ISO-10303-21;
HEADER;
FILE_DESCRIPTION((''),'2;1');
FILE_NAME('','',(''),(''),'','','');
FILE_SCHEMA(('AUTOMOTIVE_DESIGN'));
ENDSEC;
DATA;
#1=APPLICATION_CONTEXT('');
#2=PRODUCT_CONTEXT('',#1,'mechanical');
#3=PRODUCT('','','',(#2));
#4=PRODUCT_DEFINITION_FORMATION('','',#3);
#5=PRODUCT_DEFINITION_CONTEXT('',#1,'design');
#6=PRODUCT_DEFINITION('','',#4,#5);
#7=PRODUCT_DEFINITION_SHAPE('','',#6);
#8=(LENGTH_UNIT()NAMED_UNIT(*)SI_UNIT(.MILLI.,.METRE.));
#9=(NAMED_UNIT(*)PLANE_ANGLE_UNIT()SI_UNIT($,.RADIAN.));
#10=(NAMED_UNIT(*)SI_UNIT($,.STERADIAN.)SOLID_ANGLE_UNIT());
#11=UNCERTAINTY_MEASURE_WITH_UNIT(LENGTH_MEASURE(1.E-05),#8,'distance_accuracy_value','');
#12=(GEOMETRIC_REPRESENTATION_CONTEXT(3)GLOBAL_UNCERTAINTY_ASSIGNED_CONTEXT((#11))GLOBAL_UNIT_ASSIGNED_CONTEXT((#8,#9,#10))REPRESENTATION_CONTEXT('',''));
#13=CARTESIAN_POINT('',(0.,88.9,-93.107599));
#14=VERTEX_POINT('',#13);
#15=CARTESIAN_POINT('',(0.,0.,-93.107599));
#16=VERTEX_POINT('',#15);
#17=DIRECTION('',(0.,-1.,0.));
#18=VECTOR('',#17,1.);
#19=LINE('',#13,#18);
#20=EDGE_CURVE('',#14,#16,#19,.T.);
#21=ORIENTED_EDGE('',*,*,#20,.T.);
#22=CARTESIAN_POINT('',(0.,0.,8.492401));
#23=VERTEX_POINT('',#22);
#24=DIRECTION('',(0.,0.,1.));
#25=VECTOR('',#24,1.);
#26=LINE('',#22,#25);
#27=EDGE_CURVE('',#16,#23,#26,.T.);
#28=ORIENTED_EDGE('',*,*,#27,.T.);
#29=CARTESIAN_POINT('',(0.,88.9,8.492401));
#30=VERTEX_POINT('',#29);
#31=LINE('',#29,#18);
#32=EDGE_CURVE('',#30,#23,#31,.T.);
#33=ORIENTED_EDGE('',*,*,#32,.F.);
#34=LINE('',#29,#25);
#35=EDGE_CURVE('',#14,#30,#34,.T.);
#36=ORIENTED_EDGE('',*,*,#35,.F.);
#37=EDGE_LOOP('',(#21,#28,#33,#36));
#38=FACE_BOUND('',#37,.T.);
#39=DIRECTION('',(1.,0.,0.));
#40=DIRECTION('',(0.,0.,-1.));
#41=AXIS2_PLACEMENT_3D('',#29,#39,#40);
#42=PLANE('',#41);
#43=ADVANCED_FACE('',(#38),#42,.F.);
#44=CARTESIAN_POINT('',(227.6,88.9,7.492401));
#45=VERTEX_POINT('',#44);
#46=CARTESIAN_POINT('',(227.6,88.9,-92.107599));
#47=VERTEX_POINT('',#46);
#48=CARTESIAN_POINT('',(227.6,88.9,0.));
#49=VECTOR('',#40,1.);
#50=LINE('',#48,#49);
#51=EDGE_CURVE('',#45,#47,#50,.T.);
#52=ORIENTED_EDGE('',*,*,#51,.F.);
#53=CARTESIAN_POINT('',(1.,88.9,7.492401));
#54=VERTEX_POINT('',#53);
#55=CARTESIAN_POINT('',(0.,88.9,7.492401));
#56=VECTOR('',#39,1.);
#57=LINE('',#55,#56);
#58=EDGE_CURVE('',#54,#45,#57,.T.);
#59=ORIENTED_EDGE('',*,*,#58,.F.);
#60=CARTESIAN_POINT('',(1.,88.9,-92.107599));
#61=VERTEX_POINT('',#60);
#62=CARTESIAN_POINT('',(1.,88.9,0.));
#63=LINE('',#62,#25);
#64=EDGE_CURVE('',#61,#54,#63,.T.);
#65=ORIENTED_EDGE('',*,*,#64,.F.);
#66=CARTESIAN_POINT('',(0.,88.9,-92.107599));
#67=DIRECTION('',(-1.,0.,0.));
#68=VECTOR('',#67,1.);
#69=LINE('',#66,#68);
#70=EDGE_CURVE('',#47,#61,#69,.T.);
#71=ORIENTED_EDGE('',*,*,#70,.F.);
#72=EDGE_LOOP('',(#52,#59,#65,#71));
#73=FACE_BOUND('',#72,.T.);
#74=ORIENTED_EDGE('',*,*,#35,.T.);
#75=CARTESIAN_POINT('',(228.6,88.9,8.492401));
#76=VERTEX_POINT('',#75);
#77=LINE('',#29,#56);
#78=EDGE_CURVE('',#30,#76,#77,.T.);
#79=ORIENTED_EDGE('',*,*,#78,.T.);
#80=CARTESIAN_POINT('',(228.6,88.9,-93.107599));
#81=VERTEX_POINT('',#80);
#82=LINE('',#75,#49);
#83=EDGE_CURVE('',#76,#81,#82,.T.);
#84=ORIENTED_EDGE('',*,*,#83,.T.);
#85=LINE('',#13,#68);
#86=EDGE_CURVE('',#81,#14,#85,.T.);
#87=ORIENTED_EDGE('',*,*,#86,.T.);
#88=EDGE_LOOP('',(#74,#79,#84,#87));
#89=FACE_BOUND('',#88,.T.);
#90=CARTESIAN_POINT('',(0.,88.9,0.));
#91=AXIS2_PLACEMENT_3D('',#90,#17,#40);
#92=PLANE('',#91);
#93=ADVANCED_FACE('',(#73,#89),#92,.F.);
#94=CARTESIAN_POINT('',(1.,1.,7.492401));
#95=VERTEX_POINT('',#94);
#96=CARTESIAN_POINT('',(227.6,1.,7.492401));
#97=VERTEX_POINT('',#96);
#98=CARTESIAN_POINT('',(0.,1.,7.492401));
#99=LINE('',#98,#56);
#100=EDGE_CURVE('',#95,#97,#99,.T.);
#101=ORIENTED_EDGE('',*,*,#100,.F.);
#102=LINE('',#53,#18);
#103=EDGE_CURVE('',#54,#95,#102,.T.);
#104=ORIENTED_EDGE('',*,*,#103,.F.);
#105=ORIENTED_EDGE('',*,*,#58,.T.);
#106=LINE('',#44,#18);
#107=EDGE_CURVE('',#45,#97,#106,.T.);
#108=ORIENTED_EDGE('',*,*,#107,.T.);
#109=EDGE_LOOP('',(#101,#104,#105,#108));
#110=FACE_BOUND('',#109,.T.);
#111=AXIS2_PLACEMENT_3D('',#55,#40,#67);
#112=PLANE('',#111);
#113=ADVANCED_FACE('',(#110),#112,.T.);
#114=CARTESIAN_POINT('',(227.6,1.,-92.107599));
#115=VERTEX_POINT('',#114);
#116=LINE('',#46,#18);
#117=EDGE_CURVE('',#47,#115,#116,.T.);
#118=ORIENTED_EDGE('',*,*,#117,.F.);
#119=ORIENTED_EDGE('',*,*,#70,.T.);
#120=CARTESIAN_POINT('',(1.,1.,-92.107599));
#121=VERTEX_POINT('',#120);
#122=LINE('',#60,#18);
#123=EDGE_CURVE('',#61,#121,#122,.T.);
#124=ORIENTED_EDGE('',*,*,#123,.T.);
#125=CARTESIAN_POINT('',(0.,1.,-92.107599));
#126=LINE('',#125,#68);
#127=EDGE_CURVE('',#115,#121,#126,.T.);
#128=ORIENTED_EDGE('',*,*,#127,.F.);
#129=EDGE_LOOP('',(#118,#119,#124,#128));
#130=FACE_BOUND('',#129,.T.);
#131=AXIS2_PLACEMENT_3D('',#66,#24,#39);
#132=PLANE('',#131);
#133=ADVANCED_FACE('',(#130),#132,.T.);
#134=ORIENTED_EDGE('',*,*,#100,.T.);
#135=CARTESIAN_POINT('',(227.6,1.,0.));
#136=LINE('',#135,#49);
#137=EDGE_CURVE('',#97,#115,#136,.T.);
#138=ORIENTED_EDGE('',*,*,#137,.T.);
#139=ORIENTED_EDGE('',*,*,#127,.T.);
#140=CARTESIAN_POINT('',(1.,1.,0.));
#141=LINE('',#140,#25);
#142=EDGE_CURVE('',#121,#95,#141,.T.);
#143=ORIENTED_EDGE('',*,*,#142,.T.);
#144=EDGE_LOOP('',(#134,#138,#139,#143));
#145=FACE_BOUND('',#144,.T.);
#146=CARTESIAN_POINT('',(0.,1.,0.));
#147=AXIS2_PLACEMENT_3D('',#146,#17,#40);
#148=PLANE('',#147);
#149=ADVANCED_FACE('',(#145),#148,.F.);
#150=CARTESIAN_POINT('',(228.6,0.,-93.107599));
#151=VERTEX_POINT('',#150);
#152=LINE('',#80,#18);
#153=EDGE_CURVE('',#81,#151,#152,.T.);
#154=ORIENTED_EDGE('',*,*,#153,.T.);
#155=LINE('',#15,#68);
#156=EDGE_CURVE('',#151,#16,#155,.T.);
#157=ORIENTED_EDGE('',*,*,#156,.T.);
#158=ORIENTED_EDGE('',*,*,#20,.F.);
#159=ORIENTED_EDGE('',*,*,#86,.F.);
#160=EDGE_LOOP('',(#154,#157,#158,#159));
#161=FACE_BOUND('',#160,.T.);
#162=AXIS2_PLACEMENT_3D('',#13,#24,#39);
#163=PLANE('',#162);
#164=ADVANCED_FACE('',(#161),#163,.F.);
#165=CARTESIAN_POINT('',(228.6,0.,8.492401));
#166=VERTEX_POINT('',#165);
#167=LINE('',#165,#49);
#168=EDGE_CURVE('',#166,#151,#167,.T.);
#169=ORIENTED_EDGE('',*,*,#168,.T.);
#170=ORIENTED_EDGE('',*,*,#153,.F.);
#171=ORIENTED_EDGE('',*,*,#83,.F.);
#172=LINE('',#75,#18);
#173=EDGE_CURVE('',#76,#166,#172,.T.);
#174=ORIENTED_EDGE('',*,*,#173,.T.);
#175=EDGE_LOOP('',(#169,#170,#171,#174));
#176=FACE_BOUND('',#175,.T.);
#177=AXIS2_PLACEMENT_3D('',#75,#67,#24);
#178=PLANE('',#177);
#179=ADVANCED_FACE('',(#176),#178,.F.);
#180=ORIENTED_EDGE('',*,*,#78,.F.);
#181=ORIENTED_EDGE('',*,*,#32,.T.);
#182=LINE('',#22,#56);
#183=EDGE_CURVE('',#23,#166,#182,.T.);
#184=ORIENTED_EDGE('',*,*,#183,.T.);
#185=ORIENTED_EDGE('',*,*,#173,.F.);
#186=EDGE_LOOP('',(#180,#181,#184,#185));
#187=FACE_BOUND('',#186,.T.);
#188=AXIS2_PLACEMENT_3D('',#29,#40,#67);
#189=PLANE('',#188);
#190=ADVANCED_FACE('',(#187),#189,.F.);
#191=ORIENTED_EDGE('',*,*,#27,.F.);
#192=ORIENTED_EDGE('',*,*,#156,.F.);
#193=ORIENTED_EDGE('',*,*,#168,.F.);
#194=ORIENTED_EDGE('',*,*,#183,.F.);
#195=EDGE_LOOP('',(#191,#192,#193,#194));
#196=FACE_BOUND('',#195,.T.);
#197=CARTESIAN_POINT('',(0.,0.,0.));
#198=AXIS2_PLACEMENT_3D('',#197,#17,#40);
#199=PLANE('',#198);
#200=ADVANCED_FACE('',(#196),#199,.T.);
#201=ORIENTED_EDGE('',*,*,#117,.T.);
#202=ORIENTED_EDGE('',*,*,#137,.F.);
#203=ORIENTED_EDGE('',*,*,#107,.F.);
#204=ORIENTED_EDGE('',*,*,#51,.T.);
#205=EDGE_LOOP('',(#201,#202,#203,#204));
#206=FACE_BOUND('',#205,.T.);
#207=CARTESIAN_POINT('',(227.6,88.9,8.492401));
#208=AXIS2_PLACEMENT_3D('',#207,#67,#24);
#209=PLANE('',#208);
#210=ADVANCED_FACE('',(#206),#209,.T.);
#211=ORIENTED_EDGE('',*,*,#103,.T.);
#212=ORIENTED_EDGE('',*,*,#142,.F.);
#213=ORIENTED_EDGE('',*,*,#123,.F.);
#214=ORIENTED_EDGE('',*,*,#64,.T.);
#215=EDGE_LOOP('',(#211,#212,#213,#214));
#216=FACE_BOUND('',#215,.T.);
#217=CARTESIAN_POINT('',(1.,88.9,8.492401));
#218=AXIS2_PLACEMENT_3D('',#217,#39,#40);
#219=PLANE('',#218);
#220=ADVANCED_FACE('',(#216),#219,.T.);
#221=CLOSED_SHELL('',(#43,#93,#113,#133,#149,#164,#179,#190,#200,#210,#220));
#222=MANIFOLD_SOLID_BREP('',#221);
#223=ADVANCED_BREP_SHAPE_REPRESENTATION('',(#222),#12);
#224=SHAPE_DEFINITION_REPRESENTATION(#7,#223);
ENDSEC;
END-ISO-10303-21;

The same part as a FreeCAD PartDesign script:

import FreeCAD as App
import Part
import Sketcher
Q = App.Units.Quantity


def faces_at(feature, points):
    """Names of the faces that lie closest to the given points."""
    faces = feature.Shape.Faces
    near = lambda p: min(range(len(faces)), key=lambda i: faces[i].distToShape(Part.Vertex(*p))[0])
    return sorted({f"Face{near(p) + 1}" for p in points})

doc = App.newDocument("Part")
body = doc.addObject("PartDesign::Body", "Body")

# Sketch on XZ plane
sketch1 = body.newObject("Sketcher::SketchObject", "Sketch")
sketch1.AttachmentSupport = (doc.getObject("XZ_Plane"), [""])
sketch1.MapMode = "FlatFace"
sketch1.addGeometry(Part.LineSegment(App.Vector(0, -93.107599, 0), App.Vector(0, 8.492401, 0)), False)
sketch1.addGeometry(Part.LineSegment(App.Vector(0, 8.492401, 0), App.Vector(228.6, 8.492401, 0)), False)
sketch1.addGeometry(Part.LineSegment(App.Vector(228.6, 8.492401, 0), App.Vector(228.6, -93.107599, 0)), False)
sketch1.addGeometry(Part.LineSegment(App.Vector(228.6, -93.107599, 0), App.Vector(0, -93.107599, 0)), False)
sketch1.addConstraint(Sketcher.Constraint("Coincident", 0, 2, 1, 1))
sketch1.addConstraint(Sketcher.Constraint("Coincident", 1, 2, 2, 1))
sketch1.addConstraint(Sketcher.Constraint("Coincident", 2, 2, 3, 1))
sketch1.addConstraint(Sketcher.Constraint("Coincident", 3, 2, 0, 1))
sketch1.addConstraint(Sketcher.Constraint("Vertical", 0))
sketch1.addConstraint(Sketcher.Constraint("Horizontal", 1))
sketch1.addConstraint(Sketcher.Constraint("Vertical", 2))
sketch1.addConstraint(Sketcher.Constraint("Horizontal", 3))
sketch1.addConstraint(Sketcher.Constraint("PointOnObject", 0, 2, -2))
sketch1.addConstraint(Sketcher.Constraint("DistanceX", 1, 1, 1, 2, Q("9 in")))
sketch1.addConstraint(Sketcher.Constraint("DistanceY", 0, 1, 0, 2, Q("4 in")))
sketch1.addConstraint(Sketcher.Constraint("DistanceY", -1, 1, 0, 2, Q("8.492401 mm")))
pad1 = body.newObject("PartDesign::Pad", "Pad")
pad1.Profile = sketch1
pad1.Length = Q("3.5 in")
pad1.Reversed = True
doc.recompute()

thickness = body.newObject("PartDesign::Thickness", "Thickness")
thickness.Base = (pad1, faces_at(pad1, [(114.3, 88.9, -42.308)]))
thickness.Value = 1
thickness.Reversed = True
thickness.Join = "Intersection"

doc.recompute()
